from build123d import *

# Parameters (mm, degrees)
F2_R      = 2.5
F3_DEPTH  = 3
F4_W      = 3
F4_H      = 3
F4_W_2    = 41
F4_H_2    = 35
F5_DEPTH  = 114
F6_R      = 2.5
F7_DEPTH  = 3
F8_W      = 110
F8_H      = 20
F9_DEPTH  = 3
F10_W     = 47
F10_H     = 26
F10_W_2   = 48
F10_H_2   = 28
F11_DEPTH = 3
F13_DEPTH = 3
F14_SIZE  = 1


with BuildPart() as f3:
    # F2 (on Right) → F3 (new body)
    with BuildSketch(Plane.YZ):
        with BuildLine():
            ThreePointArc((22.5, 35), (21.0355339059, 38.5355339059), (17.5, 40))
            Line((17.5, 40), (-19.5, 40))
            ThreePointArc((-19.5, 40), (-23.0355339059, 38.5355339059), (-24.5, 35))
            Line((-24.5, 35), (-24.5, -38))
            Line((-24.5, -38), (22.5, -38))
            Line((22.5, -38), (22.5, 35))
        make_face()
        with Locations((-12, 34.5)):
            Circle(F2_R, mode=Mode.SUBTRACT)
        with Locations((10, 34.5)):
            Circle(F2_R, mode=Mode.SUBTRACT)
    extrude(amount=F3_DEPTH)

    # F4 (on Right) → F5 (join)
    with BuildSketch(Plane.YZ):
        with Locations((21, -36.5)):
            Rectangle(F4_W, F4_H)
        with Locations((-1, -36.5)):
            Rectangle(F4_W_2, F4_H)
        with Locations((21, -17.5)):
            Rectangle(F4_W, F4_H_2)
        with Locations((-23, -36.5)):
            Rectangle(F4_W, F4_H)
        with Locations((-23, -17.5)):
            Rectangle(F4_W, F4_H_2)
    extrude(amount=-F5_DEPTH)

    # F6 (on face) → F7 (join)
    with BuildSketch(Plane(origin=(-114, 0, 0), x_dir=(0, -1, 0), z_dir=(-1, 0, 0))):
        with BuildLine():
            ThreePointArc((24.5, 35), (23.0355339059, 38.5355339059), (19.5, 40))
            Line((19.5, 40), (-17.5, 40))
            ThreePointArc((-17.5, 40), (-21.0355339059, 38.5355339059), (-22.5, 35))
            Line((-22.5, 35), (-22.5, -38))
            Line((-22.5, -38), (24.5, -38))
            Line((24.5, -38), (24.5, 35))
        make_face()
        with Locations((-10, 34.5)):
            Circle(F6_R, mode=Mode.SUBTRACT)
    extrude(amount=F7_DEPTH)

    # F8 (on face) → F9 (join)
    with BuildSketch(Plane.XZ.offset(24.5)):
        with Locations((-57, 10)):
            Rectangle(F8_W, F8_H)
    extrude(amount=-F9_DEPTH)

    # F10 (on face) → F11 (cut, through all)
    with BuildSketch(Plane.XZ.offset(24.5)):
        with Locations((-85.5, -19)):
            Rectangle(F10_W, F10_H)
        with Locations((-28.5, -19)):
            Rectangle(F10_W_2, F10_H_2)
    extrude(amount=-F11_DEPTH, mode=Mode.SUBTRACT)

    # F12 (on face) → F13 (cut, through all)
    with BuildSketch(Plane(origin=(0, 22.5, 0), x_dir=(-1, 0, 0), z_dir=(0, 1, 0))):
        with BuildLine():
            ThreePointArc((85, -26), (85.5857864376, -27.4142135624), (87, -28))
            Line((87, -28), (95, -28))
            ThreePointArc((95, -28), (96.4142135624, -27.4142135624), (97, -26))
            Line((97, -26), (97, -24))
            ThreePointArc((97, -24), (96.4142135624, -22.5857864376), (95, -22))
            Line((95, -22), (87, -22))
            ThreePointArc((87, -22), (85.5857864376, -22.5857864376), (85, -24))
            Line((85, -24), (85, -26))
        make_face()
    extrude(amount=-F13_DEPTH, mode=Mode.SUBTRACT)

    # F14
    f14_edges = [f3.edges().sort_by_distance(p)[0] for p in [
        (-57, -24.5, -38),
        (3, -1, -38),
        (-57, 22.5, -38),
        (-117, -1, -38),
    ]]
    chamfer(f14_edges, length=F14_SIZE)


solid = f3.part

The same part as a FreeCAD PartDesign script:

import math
import FreeCAD as App
import Part
import Sketcher
from FreeCAD import Vector


def edges_at(feature, points):
    """Names of the edges that pass closest to the given points."""
    edges = feature.Shape.Edges
    near = lambda p: min(range(len(edges)), key=lambda i: edges[i].distToShape(Part.Vertex(*p))[0])
    return sorted({f"Edge{near(p) + 1}" for p in points})


def add_polygon(sketch, points):
    """Adds a closed chain of lines whose ends are joined by coincident constraints."""
    first, n = sketch.GeometryCount, len(points)
    for a, b in zip(points, points[1:] + points[:1]):
        sketch.addGeometry(Part.LineSegment(App.Vector(*a, 0), App.Vector(*b, 0)), False)
    for i in range(n):
        sketch.addConstraint(Sketcher.Constraint("Coincident", first + i, 2, first + (i + 1) % n, 1))

doc = App.newDocument("Part")
body = doc.addObject("PartDesign::Body", "Body")

# Sketch on YZ plane
sketch1 = body.newObject("Sketcher::SketchObject", "Sketch")
sketch1.AttachmentSupport = (doc.getObject("YZ_Plane"), [""])
sketch1.MapMode = "FlatFace"
sketch1.addGeometry([
    Part.ArcOfCircle(Part.Circle(Vector(17.5, 35, 0), Vector(0, 0, 1), 5), math.radians(0), math.radians(90)),  # 0
    Part.LineSegment(Vector(17.5, 40, 0), Vector(-19.5, 40, 0)),  # 1
    Part.ArcOfCircle(Part.Circle(Vector(-19.5, 35, 0), Vector(0, 0, 1), 5), math.radians(90), math.radians(180)),  # 2
    Part.LineSegment(Vector(-24.5, 35, 0), Vector(-24.5, -38, 0)),  # 3
    Part.LineSegment(Vector(-24.5, -38, 0), Vector(22.5, -38, 0)),  # 4
    Part.LineSegment(Vector(22.5, -38, 0), Vector(22.5, 35, 0)),  # 5
    Part.Circle(Vector(-12, 34.5, 0), Vector(0, 0, 1), 2.5),  # 6
    Part.Circle(Vector(10, 34.5, 0), Vector(0, 0, 1), 2.5),  # 7
], False)
sketch1.addConstraint([
    Sketcher.Constraint("Tangent", 0, 2, 1, 1),
    Sketcher.Constraint("Tangent", 1, 2, 2, 1),
    Sketcher.Constraint("Tangent", 2, 2, 3, 1),
    Sketcher.Constraint("Coincident", 3, 2, 4, 1),
    Sketcher.Constraint("Coincident", 4, 2, 5, 1),
    Sketcher.Constraint("Tangent", 5, 2, 0, 1),
    Sketcher.Constraint("Horizontal", 1),
    Sketcher.Constraint("Vertical", 3),
    Sketcher.Constraint("Horizontal", 4),
    Sketcher.Constraint("Vertical", 5),
    Sketcher.Constraint("Equal", 0, 2),
    Sketcher.Constraint("Equal", 6, 7),
    Sketcher.Constraint("Horizontal", 6, 3, 7, 3),
    Sketcher.Constraint("Diameter", 6, 5.0),
    Sketcher.Constraint("Radius", 0, 5.0),
    Sketcher.Constraint("DistanceX", 1, 2, 1, 1, 37.0),
    Sketcher.Constraint("DistanceY", 3, 2, 3, 1, 73.0),
    Sketcher.Constraint("DistanceY", -1, 1, 0, 3, 35.0),
    Sketcher.Constraint("DistanceX", 6, 3, -1, 1, 12.0),
    Sketcher.Constraint("DistanceX", -1, 1, 7, 3, 10.0),
    Sketcher.Constraint("DistanceX", -1, 1, 0, 3, 17.5),
    Sketcher.Constraint("DistanceY", -1, 1, 6, 3, 34.5),
])
pad1 = body.newObject("PartDesign::Pad", "Pad")
pad1.Profile = sketch1
pad1.Length = 3

# Sketch on YZ plane
sketch2 = body.newObject("Sketcher::SketchObject", "Sketch001")
sketch2.AttachmentSupport = (doc.getObject("YZ_Plane"), [""])
sketch2.MapMode = "FlatFace"
add_polygon(sketch2, [(22.5, -38), (22.5, 0), (19.5, 0), (19.5, -35), (-21.5, -35), (-21.5, 0), (-24.5, 0), (-24.5, -38)])  # lines 0-7
sketch2.addConstraint([
    Sketcher.Constraint("Vertical", 0),
    Sketcher.Constraint("Horizontal", 1),
    Sketcher.Constraint("Vertical", 2),
    Sketcher.Constraint("Horizontal", 3),
    Sketcher.Constraint("Vertical", 4),
    Sketcher.Constraint("Horizontal", 5),
    Sketcher.Constraint("Vertical", 6),
    Sketcher.Constraint("Horizontal", 7),
    Sketcher.Constraint("PointOnObject", 0, 2, -1),
    Sketcher.Constraint("PointOnObject", 4, 2, -1),
    Sketcher.Constraint("Equal", 1, 5),
    Sketcher.Constraint("DistanceX", 1, 2, 1, 1, 3.0),
    Sketcher.Constraint("DistanceX", 3, 2, 3, 1, 41.0),
    Sketcher.Constraint("DistanceY", 0, 1, 0, 2, 38.0),
    Sketcher.Constraint("DistanceY", 2, 2, 2, 1, 35.0),
    Sketcher.Constraint("DistanceX", -1, 1, 0, 2, 22.5),
])
pad2 = body.newObject("PartDesign::Pad", "Pad001")
pad2.Profile = sketch2
pad2.Length = 114
pad2.Reversed = True

# Sketch on YZ plane
sketch3 = body.newObject("Sketcher::SketchObject", "Sketch002")
sketch3.AttachmentSupport = (doc.getObject("YZ_Plane"), [""])
sketch3.MapMode = "FlatFace"
sketch3.AttachmentOffset = App.Placement(Vector(0, 0, -114), App.Rotation())
sketch3.addGeometry([
    Part.ArcOfCircle(Part.Circle(Vector(-19.5, 35, 0), Vector(0, 0, 1), 5), math.radians(90), math.radians(180)),  # 0
    Part.LineSegment(Vector(-19.5, 40, 0), Vector(17.5, 40, 0)),  # 1
    Part.ArcOfCircle(Part.Circle(Vector(17.5, 35, 0), Vector(0, 0, 1), 5), math.radians(0), math.radians(90)),  # 2
    Part.LineSegment(Vector(22.5, 35, 0), Vector(22.5, -38, 0)),  # 3
    Part.LineSegment(Vector(22.5, -38, 0), Vector(-24.5, -38, 0)),  # 4
    Part.LineSegment(Vector(-24.5, -38, 0), Vector(-24.5, 35, 0)),  # 5
    Part.Circle(Vector(10, 34.5, 0), Vector(0, 0, 1), 2.5),  # 6
], False)
sketch3.addConstraint([
    Sketcher.Constraint("Tangent", 0, 1, 1, 1),
    Sketcher.Constraint("Tangent", 1, 2, 2, 2),
    Sketcher.Constraint("Tangent", 2, 1, 3, 1),
    Sketcher.Constraint("Coincident", 3, 2, 4, 1),
    Sketcher.Constraint("Coincident", 4, 2, 5, 1),
    Sketcher.Constraint("Tangent", 5, 2, 0, 2),
    Sketcher.Constraint("Horizontal", 1),
    Sketcher.Constraint("Vertical", 3),
    Sketcher.Constraint("Horizontal", 4),
    Sketcher.Constraint("Vertical", 5),
    Sketcher.Constraint("Equal", 0, 2),
    Sketcher.Constraint("Diameter", 6, 5.0),
    Sketcher.Constraint("Radius", 0, 5.0),
    Sketcher.Constraint("DistanceX", 1, 1, 1, 2, 37.0),
    Sketcher.Constraint("DistanceY", 3, 2, 3, 1, 73.0),
    Sketcher.Constraint("DistanceY", -1, 1, 0, 3, 35.0),
    Sketcher.Constraint("DistanceX", -1, 1, 6, 3, 10.0),
    Sketcher.Constraint("DistanceX", 0, 3, -1, 1, 19.5),
    Sketcher.Constraint("DistanceY", -1, 1, 6, 3, 34.5),
])
pad3 = body.newObject("PartDesign::Pad", "Pad002")
pad3.Profile = sketch3
pad3.Length = 3
pad3.Reversed = True

# Sketch on XZ plane
sketch4 = body.newObject("Sketcher::SketchObject", "Sketch003")
sketch4.AttachmentSupport = (doc.getObject("XZ_Plane"), [""])
sketch4.MapMode = "FlatFace"
sketch4.AttachmentOffset = App.Placement(Vector(0, 0, 24.5), App.Rotation())
add_polygon(sketch4, [(-112, 20), (-112, 0), (-2, 0), (-2, 20)])  # lines 0-3
sketch4.addConstraint([
    Sketcher.Constraint("Vertical", 0),
    Sketcher.Constraint("Horizontal", 1),
    Sketcher.Constraint("Vertical", 2),
    Sketcher.Constraint("Horizontal", 3),
    Sketcher.Constraint("PointOnObject", 0, 2, -1),
    Sketcher.Constraint("DistanceX", 1, 1, 1, 2, 110.0),
    Sketcher.Constraint("DistanceY", 0, 2, 0, 1, 20.0),
    Sketcher.Constraint("DistanceX", 0, 2, -1, 1, 112.0),
])
pad4 = body.newObject("PartDesign::Pad", "Pad003")
pad4.Profile = sketch4
pad4.Length = 3
pad4.Reversed = True

# Sketch on XZ plane
sketch5 = body.newObject("Sketcher::SketchObject", "Sketch004")
sketch5.AttachmentSupport = (doc.getObject("XZ_Plane"), [""])
sketch5.MapMode = "FlatFace"
sketch5.AttachmentOffset = App.Placement(Vector(0, 0, 24.5), App.Rotation())
add_polygon(sketch5, [(-109, -6), (-109, -32), (-62, -32), (-62, -6)])  # lines 0-3
add_polygon(sketch5, [(-52.5, -5), (-52.5, -33), (-4.5, -33), (-4.5, -5)])  # lines 4-7
sketch5.addConstraint([
    Sketcher.Constraint("Vertical", 0),
    Sketcher.Constraint("Horizontal", 1),
    Sketcher.Constraint("Vertical", 2),
    Sketcher.Constraint("Horizontal", 3),
    Sketcher.Constraint("Vertical", 4),
    Sketcher.Constraint("Horizontal", 5),
    Sketcher.Constraint("Vertical", 6),
    Sketcher.Constraint("Horizontal", 7),
    Sketcher.Constraint("DistanceX", 1, 1, 1, 2, 47.0),
    Sketcher.Constraint("DistanceX", 5, 1, 5, 2, 48.0),
    Sketcher.Constraint("DistanceY", 0, 2, 0, 1, 26.0),
    Sketcher.Constraint("DistanceY", 4, 2, 4, 1, 28.0),
    Sketcher.Constraint("DistanceX", 0, 2, -1, 1, 109.0),
    Sketcher.Constraint("DistanceY", 0, 2, -1, 1, 32.0),
    Sketcher.Constraint("DistanceY", 4, 2, -1, 1, 33.0),
    Sketcher.Constraint("DistanceX", 4, 2, -1, 1, 52.5),
])
pocket1 = body.newObject("PartDesign::Pocket", "Pocket")
pocket1.Profile = sketch5
pocket1.Length = 3

# Sketch on XZ plane
sketch6 = body.newObject("Sketcher::SketchObject", "Sketch005")
sketch6.AttachmentSupport = (doc.getObject("XZ_Plane"), [""])
sketch6.MapMode = "FlatFace"
sketch6.AttachmentOffset = App.Placement(Vector(0, 0, -22.5), App.Rotation())
sketch6.addGeometry([
    Part.ArcOfCircle(Part.Circle(Vector(-87, -26, 0), Vector(0, 0, 1), 2), math.radians(-90), math.radians(0)),  # 0
    Part.LineSegment(Vector(-87, -28, 0), Vector(-95, -28, 0)),  # 1
    Part.ArcOfCircle(Part.Circle(Vector(-95, -26, 0), Vector(0, 0, 1), 2), math.radians(180), math.radians(270)),  # 2
    Part.LineSegment(Vector(-97, -26, 0), Vector(-97, -24, 0)),  # 3
    Part.ArcOfCircle(Part.Circle(Vector(-95, -24, 0), Vector(0, 0, 1), 2), math.radians(90), math.radians(180)),  # 4
    Part.LineSegment(Vector(-95, -22, 0), Vector(-87, -22, 0)),  # 5
    Part.ArcOfCircle(Part.Circle(Vector(-87, -24, 0), Vector(0, 0, 1), 2), math.radians(0), math.radians(90)),  # 6
    Part.LineSegment(Vector(-85, -24, 0), Vector(-85, -26, 0)),  # 7
], False)
sketch6.addConstraint([
    Sketcher.Constraint("Tangent", 0, 1, 1, 1),
    Sketcher.Constraint("Tangent", 1, 2, 2, 2),
    Sketcher.Constraint("Tangent", 2, 1, 3, 1),
    Sketcher.Constraint("Tangent", 3, 2, 4, 2),
    Sketcher.Constraint("Tangent", 4, 1, 5, 1),
    Sketcher.Constraint("Tangent", 5, 2, 6, 2),
    Sketcher.Constraint("Tangent", 6, 1, 7, 1),
    Sketcher.Constraint("Tangent", 7, 2, 0, 2),
    Sketcher.Constraint("Horizontal", 1),
    Sketcher.Constraint("Vertical", 3),
    Sketcher.Constraint("Horizontal", 5),
    Sketcher.Constraint("Vertical", 7),
    Sketcher.Constraint("Equal", 0, 2),
    Sketcher.Constraint("Equal", 2, 4),
    Sketcher.Constraint("Equal", 4, 6),
    Sketcher.Constraint("Radius", 0, 2.0),
    Sketcher.Constraint("DistanceX", 1, 2, 1, 1, 8.0),
    Sketcher.Constraint("DistanceY", 3, 1, 3, 2, 2.0),
    Sketcher.Constraint("DistanceX", 0, 3, -1, 1, 87.0),
    Sketcher.Constraint("DistanceY", 0, 3, -1, 1, 26.0),
])
pocket2 = body.newObject("PartDesign::Pocket", "Pocket001")
pocket2.Profile = sketch6
pocket2.Type = "ThroughAll"
pocket2.Reversed = True
doc.recompute()

chamfer = body.newObject("PartDesign::Chamfer", "Chamfer")
chamfer.Base = (pocket2, edges_at(pocket2, [
    (-57, -24.5, -38),
    (3, -1, -38),
    (-57, 22.5, -38),
    (-117, -1, -38),
]))
chamfer.Size = 1

doc.recompute()
